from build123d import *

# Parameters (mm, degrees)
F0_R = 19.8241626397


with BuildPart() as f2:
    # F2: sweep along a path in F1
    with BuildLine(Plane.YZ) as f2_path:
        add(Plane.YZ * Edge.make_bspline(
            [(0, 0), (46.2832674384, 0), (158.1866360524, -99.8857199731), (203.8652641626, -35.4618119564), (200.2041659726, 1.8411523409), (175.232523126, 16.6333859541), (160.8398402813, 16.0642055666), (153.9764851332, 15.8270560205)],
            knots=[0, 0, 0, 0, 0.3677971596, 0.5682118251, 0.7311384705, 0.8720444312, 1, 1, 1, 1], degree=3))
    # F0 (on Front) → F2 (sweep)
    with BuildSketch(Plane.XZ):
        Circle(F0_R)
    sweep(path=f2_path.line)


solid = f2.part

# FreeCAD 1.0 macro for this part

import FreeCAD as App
import Part
import Sketcher

V = App.Vector
Q = App.Units.Quantity

doc = App.newDocument("Part")
body = doc.addObject("PartDesign::Body", "Body")

# Sketch on XZ plane
sketch1 = body.newObject("Sketcher::SketchObject", "Sketch")
sketch1.AttachmentSupport = (doc.getObject("XZ_Plane"), [""])
sketch1.MapMode = "FlatFace"
sketch1.addGeometry(Part.Circle(V(0, 0, 0), V(0, 0, 1), 19.824163), False)
sketch1.addConstraint([
    Sketcher.Constraint("Coincident", 0, 3, -1, 1),
    Sketcher.Constraint("Diameter", 0, Q("39.648325 mm")),
])

# Sketch on YZ plane
sketch2 = body.newObject("Sketcher::SketchObject", "Sketch001")
sketch2.AttachmentSupport = (doc.getObject("YZ_Plane"), [""])
sketch2.MapMode = "FlatFace"
sketch2.addGeometry(Part.BSplineCurve([V(0, 0, 0), V(46.283267, 0, 0), V(158.186636, -99.88572, 0), V(203.865264, -35.461812, 0), V(200.204166, 1.841152, 0), V(175.232523, 16.633386, 0), V(160.83984, 16.064206, 0), V(153.976485, 15.827056, 0)], [4, 1, 1, 1, 1, 4], [0, 0.36779716, 0.568211825, 0.731138471, 0.872044431, 1], False, 3, [1, 1, 1, 1, 1, 1, 1, 1], False), False)
sketch2.addConstraint(Sketcher.Constraint("Block", 0))
doc.recompute()

additivepipe = body.newObject("PartDesign::AdditivePipe", "AdditivePipe")
additivepipe.Profile = sketch1
additivepipe.Spine = (sketch2, ["Edge1"])

doc.recompute()
